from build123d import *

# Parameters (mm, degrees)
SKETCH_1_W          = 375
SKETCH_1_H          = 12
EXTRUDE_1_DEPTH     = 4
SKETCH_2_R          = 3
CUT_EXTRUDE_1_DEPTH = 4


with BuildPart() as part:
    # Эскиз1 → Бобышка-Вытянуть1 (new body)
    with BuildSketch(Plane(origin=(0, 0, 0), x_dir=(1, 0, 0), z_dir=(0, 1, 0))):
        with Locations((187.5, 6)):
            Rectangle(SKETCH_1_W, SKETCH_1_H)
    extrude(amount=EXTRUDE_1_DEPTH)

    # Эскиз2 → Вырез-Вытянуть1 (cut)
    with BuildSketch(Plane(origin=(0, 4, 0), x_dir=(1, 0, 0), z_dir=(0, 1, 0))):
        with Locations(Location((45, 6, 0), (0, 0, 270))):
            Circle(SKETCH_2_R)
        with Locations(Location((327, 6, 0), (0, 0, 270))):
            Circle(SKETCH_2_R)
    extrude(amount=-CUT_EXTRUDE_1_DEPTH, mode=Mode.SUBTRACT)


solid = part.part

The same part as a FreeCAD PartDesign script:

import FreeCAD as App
import Part
import Sketcher

V = App.Vector
Q = App.Units.Quantity

doc = App.newDocument("Part")
body = doc.addObject("PartDesign::Body", "Body")

sketch1 = body.newObject("Sketcher::SketchObject", "Sketch")
sketch1.AttachmentSupport = (doc.getObject("XZ_Plane"), [""])
sketch1.MapMode = "FlatFace"
sketch1.addGeometry([
    Part.LineSegment(V(0, -12, 0), V(0, 0, 0)),
    Part.LineSegment(V(0, 0, 0), V(375, 0, 0)),
    Part.LineSegment(V(375, 0, 0), V(375, -12, 0)),
    Part.LineSegment(V(375, -12, 0), V(0, -12, 0)),
], False)
sketch1.addConstraint([
    Sketcher.Constraint("Coincident", 0, 2, 1, 1),
    Sketcher.Constraint("Coincident", 1, 2, 2, 1),
    Sketcher.Constraint("Coincident", 2, 2, 3, 1),
    Sketcher.Constraint("Coincident", 3, 2, 0, 1),
    Sketcher.Constraint("Vertical", 0),
    Sketcher.Constraint("Horizontal", 1),
    Sketcher.Constraint("Vertical", 2),
    Sketcher.Constraint("Horizontal", 3),
    Sketcher.Constraint("Coincident", 0, 2, -1, 1),
    Sketcher.Constraint("DistanceX", 1, 1, 1, 2, Q("375 mm")),
    Sketcher.Constraint("DistanceY", 0, 1, 0, 2, Q("12 mm")),
])
pad1 = body.newObject("PartDesign::Pad", "Pad")
pad1.Profile = sketch1
pad1.Length = 4
pad1.Reversed = True

sketch2 = body.newObject("Sketcher::SketchObject", "Sketch001")
sketch2.AttachmentSupport = (doc.getObject("XZ_Plane"), [""])
sketch2.MapMode = "FlatFace"
sketch2.AttachmentOffset = App.Placement(V(0, 0, -4), App.Rotation())
sketch2.addGeometry([
    Part.Circle(V(45, -6, 0), V(0, 0, 1), 3),
    Part.Circle(V(327, -6, 0), V(0, 0, 1), 3),
], False)
sketch2.addConstraint([
    Sketcher.Constraint("Equal", 0, 1),
    Sketcher.Constraint("Horizontal", 0, 3, 1, 3),
    Sketcher.Constraint("Diameter", 0, Q("6 mm")),
    Sketcher.Constraint("DistanceX", -1, 1, 0, 3, Q("45 mm")),
    Sketcher.Constraint("DistanceY", 0, 3, -1, 1, Q("6 mm")),
    Sketcher.Constraint("DistanceX", -1, 1, 1, 3, Q("327 mm")),
])
pocket1 = body.newObject("PartDesign::Pocket", "Pocket")
pocket1.Profile = sketch2
pocket1.Length = 4
pocket1.Reversed = True

doc.recompute()
